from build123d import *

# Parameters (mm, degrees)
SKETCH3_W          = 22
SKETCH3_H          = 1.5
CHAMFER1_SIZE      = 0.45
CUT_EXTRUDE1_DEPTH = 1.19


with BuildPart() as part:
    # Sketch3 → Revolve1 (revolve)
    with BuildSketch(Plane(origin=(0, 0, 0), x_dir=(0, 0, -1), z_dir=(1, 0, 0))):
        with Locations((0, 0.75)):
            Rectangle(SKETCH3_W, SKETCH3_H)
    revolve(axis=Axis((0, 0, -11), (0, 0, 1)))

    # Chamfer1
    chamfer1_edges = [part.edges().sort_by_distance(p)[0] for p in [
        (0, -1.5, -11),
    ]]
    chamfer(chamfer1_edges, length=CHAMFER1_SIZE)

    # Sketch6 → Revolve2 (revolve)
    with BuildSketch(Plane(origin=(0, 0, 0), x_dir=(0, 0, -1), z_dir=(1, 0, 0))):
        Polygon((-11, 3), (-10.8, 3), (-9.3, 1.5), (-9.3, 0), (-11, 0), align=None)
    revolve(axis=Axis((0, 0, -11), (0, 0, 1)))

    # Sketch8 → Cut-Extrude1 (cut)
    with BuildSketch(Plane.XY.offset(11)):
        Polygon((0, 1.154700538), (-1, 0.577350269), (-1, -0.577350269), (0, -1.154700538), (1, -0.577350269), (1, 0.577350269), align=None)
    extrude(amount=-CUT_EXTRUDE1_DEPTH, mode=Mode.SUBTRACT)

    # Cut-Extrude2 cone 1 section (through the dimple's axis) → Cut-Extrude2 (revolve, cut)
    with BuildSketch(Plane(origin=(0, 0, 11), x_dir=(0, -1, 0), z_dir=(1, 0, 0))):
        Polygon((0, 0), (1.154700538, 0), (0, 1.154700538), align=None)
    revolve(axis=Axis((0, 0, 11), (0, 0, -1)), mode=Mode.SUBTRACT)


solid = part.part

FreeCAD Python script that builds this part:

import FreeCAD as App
import Part
import Sketcher
from FreeCAD import Vector
Q = App.Units.Quantity


def edges_at(feature, points):
    """Names of the edges that pass closest to the given points."""
    edges = feature.Shape.Edges
    near = lambda p: min(range(len(edges)), key=lambda i: edges[i].distToShape(Part.Vertex(*p))[0])
    return sorted({f"Edge{near(p) + 1}" for p in points})

doc = App.newDocument("Part")
body = doc.addObject("PartDesign::Body", "Body")

# Sketch on YZ plane
sketch1 = body.newObject("Sketcher::SketchObject", "Sketch")
sketch1.AttachmentSupport = (doc.getObject("YZ_Plane"), [""])
sketch1.MapMode = "FlatFace"
sketch1.addGeometry(Part.LineSegment(Vector(1.5, 11, 0), Vector(0, 11, 0)), False)
sketch1.addGeometry(Part.LineSegment(Vector(0, 11, 0), Vector(0, -11, 0)), False)
sketch1.addGeometry(Part.LineSegment(Vector(0, -11, 0), Vector(1.5, -11, 0)), False)
sketch1.addGeometry(Part.LineSegment(Vector(1.5, -11, 0), Vector(1.5, 11, 0)), False)
sketch1.addConstraint(Sketcher.Constraint("Coincident", 0, 2, 1, 1))
sketch1.addConstraint(Sketcher.Constraint("Coincident", 1, 2, 2, 1))
sketch1.addConstraint(Sketcher.Constraint("Coincident", 2, 2, 3, 1))
sketch1.addConstraint(Sketcher.Constraint("Coincident", 3, 2, 0, 1))
sketch1.addConstraint(Sketcher.Constraint("Horizontal", 0))
sketch1.addConstraint(Sketcher.Constraint("Vertical", 1))
sketch1.addConstraint(Sketcher.Constraint("Horizontal", 2))
sketch1.addConstraint(Sketcher.Constraint("Vertical", 3))
sketch1.addConstraint(Sketcher.Constraint("Symmetric", 0, 2, 1, 2, -1, 1))
sketch1.addConstraint(Sketcher.Constraint("DistanceY", 1, 2, 1, 1, Q("22 mm")))
sketch1.addConstraint(Sketcher.Constraint("DistanceX", 0, 2, 0, 1, Q("1.5 mm")))
revolution = body.newObject("PartDesign::Revolution", "Revolution")
revolution.Profile = sketch1
revolution.ReferenceAxis = (sketch1, ["V_Axis"])
revolution.Angle = 360
doc.recompute()

chamfer = body.newObject("PartDesign::Chamfer", "Chamfer")
chamfer.Base = (revolution, edges_at(revolution, [(0, -1.5, -11)]))
chamfer.Size = 0.45

# Sketch on YZ plane
sketch2 = body.newObject("Sketcher::SketchObject", "Sketch001")
sketch2.AttachmentSupport = (doc.getObject("YZ_Plane"), [""])
sketch2.MapMode = "FlatFace"
sketch2.addGeometry(Part.LineSegment(Vector(3, 10.8, 0), Vector(3, 11, 0)), False)
sketch2.addGeometry(Part.LineSegment(Vector(3, 11, 0), Vector(0, 11, 0)), False)
sketch2.addGeometry(Part.LineSegment(Vector(0, 11, 0), Vector(0, 9.3, 0)), False)
sketch2.addGeometry(Part.LineSegment(Vector(0, 9.3, 0), Vector(1.5, 9.3, 0)), False)
sketch2.addGeometry(Part.LineSegment(Vector(1.5, 9.3, 0), Vector(3, 10.8, 0)), False)
sketch2.addConstraint(Sketcher.Constraint("Coincident", 0, 2, 1, 1))
sketch2.addConstraint(Sketcher.Constraint("Coincident", 1, 2, 2, 1))
sketch2.addConstraint(Sketcher.Constraint("Coincident", 2, 2, 3, 1))
sketch2.addConstraint(Sketcher.Constraint("Coincident", 3, 2, 4, 1))
sketch2.addConstraint(Sketcher.Constraint("Coincident", 4, 2, 0, 1))
sketch2.addConstraint(Sketcher.Constraint("Vertical", 0))
sketch2.addConstraint(Sketcher.Constraint("Horizontal", 1))
sketch2.addConstraint(Sketcher.Constraint("Vertical", 2))
sketch2.addConstraint(Sketcher.Constraint("Horizontal", 3))
sketch2.addConstraint(Sketcher.Constraint("PointOnObject", 1, 2, -2))
sketch2.addConstraint(Sketcher.Constraint("DistanceX", 1, 2, 1, 1, Q("3 mm")))
sketch2.addConstraint(Sketcher.Constraint("Angle", 4, Q("45 deg")))
sketch2.addConstraint(Sketcher.Constraint("DistanceX", 3, 1, 3, 2, Q("1.5 mm")))
sketch2.addConstraint(Sketcher.Constraint("DistanceY", 0, 1, 0, 2, Q("0.2 mm")))
sketch2.addConstraint(Sketcher.Constraint("DistanceY", -1, 1, 0, 2, Q("11 mm")))
revolution2 = body.newObject("PartDesign::Revolution", "Revolution001")
revolution2.Profile = sketch2
revolution2.ReferenceAxis = (sketch2, ["V_Axis"])
revolution2.Angle = 360

# Sketch on XY plane
sketch3 = body.newObject("Sketcher::SketchObject", "Sketch002")
sketch3.AttachmentSupport = (doc.getObject("XY_Plane"), [""])
sketch3.MapMode = "FlatFace"
sketch3.AttachmentOffset = App.Placement(Vector(0, 0, 11), App.Rotation())
sketch3.addGeometry(Part.LineSegment(Vector(0, 1.2, 0), Vector(-1, 0.6, 0)), False)
sketch3.addGeometry(Part.LineSegment(Vector(-1, 0.6, 0), Vector(-1, -0.6, 0)), False)
sketch3.addGeometry(Part.LineSegment(Vector(-1, -0.6, 0), Vector(0, -1.2, 0)), False)
sketch3.addGeometry(Part.LineSegment(Vector(0, -1.2, 0), Vector(1, -0.6, 0)), False)
sketch3.addGeometry(Part.LineSegment(Vector(1, -0.6, 0), Vector(1, 0.6, 0)), False)
sketch3.addGeometry(Part.LineSegment(Vector(1, 0.6, 0), Vector(0, 1.2, 0)), False)
sketch3.addConstraint(Sketcher.Constraint("Coincident", 0, 2, 1, 1))
sketch3.addConstraint(Sketcher.Constraint("Coincident", 1, 2, 2, 1))
sketch3.addConstraint(Sketcher.Constraint("Coincident", 2, 2, 3, 1))
sketch3.addConstraint(Sketcher.Constraint("Coincident", 3, 2, 4, 1))
sketch3.addConstraint(Sketcher.Constraint("Coincident", 4, 2, 5, 1))
sketch3.addConstraint(Sketcher.Constraint("Coincident", 5, 2, 0, 1))
sketch3.addConstraint(Sketcher.Constraint("Vertical", 1))
sketch3.addConstraint(Sketcher.Constraint("Vertical", 4))
sketch3.addConstraint(Sketcher.Constraint("Symmetric", 0, 2, 3, 2, -1, 1))
sketch3.addConstraint(Sketcher.Constraint("Symmetric", 2, 2, 5, 2, -1, 1))
sketch3.addConstraint(Sketcher.Constraint("PointOnObject", 2, 2, -2))
sketch3.addConstraint(Sketcher.Constraint("Parallel", 2, 5))
sketch3.addConstraint(Sketcher.Constraint("Horizontal", 1, 2, 3, 2))
sketch3.addConstraint(Sketcher.Constraint("Angle", 0, Q("-150 deg")))
sketch3.addConstraint(Sketcher.Constraint("DistanceX", 0, 2, -1, 1, Q("1 mm")))
sketch3.addConstraint(Sketcher.Constraint("DistanceY", 1, 2, 1, 1, Q("1.154701 mm")))
pocket1 = body.newObject("PartDesign::Pocket", "Pocket")
pocket1.Profile = sketch3
pocket1.Length = 1.19

# Sketch on YZ plane
sketch4 = body.newObject("Sketcher::SketchObject", "Sketch003")
sketch4.AttachmentSupport = (doc.getObject("YZ_Plane"), [""])
sketch4.MapMode = "FlatFace"
sketch4.addGeometry(Part.LineSegment(Vector(0, 11, 0), Vector(-1.2, 11, 0)), False)
sketch4.addGeometry(Part.LineSegment(Vector(-1.2, 11, 0), Vector(0, 9.8, 0)), False)
sketch4.addGeometry(Part.LineSegment(Vector(0, 9.8, 0), Vector(0, 11, 0)), False)
sketch4.addConstraint(Sketcher.Constraint("Coincident", 0, 2, 1, 1))
sketch4.addConstraint(Sketcher.Constraint("Coincident", 1, 2, 2, 1))
sketch4.addConstraint(Sketcher.Constraint("Coincident", 2, 2, 0, 1))
sketch4.addConstraint(Sketcher.Constraint("Horizontal", 0))
sketch4.addConstraint(Sketcher.Constraint("Vertical", 2))
sketch4.addConstraint(Sketcher.Constraint("PointOnObject", 1, 2, -2))
sketch4.addConstraint(Sketcher.Constraint("Equal", 0, 2))
sketch4.addConstraint(Sketcher.Constraint("DistanceY", -1, 1, 0, 2, Q("11 mm")))
sketch4.addConstraint(Sketcher.Constraint("DistanceX", 0, 2, 0, 1, Q("1.154701 mm")))
groove = body.newObject("PartDesign::Groove", "Groove")
groove.Profile = sketch4
groove.ReferenceAxis = (sketch4, ["V_Axis"])
groove.Angle = 360

doc.recompute()
